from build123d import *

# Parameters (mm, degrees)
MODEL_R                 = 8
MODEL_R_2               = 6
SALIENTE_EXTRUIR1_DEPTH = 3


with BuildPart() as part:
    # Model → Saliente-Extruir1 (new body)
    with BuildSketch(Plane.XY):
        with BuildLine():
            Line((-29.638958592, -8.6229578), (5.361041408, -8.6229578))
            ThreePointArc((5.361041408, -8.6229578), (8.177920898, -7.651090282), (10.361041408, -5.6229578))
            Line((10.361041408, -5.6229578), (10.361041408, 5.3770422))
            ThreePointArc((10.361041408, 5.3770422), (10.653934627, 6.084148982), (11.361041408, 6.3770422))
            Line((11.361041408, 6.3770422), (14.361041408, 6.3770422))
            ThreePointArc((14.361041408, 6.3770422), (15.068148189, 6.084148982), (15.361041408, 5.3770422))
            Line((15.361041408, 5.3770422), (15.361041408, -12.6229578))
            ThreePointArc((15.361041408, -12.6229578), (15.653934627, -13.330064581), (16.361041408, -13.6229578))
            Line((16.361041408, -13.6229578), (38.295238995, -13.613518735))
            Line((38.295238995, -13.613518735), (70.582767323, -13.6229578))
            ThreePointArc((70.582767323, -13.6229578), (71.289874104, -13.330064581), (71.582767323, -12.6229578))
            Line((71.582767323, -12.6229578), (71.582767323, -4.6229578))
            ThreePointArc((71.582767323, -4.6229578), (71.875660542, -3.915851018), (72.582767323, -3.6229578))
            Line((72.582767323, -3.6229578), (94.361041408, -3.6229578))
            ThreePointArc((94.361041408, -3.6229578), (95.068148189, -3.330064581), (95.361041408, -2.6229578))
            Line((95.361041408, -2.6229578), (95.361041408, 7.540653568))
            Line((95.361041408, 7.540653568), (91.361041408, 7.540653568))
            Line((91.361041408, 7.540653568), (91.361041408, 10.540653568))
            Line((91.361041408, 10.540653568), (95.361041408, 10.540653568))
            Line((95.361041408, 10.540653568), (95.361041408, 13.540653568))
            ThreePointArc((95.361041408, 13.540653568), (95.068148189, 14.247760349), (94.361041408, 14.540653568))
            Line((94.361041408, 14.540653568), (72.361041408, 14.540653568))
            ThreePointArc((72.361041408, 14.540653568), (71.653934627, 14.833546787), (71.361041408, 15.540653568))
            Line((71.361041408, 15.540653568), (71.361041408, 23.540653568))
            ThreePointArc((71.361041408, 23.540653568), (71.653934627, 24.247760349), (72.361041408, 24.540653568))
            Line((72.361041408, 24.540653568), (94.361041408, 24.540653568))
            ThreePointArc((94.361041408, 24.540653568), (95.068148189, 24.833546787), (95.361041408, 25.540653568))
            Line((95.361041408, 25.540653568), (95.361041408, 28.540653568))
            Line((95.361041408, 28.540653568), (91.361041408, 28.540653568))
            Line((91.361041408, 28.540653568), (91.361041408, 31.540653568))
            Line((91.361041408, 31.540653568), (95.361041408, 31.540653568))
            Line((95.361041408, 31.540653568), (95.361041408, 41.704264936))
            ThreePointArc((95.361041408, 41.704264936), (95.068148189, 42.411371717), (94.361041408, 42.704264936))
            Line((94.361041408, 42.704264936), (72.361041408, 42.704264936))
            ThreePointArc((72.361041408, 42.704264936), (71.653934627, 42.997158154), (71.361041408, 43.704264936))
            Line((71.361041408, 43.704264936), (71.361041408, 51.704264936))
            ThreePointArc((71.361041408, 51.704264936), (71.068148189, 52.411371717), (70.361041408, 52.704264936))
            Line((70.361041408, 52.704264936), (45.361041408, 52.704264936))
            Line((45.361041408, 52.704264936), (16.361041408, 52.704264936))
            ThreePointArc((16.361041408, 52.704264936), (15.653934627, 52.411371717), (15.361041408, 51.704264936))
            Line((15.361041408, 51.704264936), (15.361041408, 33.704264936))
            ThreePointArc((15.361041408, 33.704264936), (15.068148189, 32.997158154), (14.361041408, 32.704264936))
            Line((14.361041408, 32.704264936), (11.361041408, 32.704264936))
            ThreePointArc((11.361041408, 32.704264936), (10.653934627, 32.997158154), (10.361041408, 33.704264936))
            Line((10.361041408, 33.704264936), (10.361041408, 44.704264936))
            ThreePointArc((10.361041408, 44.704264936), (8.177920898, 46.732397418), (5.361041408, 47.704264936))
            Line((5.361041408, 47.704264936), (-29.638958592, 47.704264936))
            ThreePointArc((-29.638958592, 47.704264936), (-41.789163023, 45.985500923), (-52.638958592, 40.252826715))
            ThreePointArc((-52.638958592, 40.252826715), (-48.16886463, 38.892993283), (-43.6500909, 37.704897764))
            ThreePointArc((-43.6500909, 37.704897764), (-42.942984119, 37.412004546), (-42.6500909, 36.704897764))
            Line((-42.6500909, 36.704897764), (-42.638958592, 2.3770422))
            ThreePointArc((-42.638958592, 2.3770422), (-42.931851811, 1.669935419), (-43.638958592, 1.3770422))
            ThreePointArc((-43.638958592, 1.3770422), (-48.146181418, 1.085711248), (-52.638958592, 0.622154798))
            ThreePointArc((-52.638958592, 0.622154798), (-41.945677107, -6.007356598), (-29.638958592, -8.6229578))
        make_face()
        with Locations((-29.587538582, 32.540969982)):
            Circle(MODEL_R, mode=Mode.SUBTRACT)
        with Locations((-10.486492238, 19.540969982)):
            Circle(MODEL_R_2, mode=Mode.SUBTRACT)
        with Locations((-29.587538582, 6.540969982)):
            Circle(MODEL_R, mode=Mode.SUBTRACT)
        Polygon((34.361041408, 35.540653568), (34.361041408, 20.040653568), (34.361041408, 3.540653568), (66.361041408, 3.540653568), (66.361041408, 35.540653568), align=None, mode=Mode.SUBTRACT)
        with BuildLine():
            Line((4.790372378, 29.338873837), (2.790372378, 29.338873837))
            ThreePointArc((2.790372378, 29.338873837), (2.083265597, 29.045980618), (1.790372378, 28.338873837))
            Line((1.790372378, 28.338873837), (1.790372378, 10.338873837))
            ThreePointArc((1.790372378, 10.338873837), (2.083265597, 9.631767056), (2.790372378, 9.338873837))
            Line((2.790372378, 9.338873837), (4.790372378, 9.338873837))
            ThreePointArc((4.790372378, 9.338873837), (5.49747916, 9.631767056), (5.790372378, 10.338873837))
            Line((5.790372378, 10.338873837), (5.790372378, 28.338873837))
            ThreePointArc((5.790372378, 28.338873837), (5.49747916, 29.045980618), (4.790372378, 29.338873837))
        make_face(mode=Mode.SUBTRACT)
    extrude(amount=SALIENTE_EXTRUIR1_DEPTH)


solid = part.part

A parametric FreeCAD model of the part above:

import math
import FreeCAD as App
import Part
import Sketcher


def add_polygon(sketch, points):
    """Adds a closed chain of lines whose ends are joined by coincident constraints."""
    first, n = sketch.GeometryCount, len(points)
    for a, b in zip(points, points[1:] + points[:1]):
        sketch.addGeometry(Part.LineSegment(App.Vector(*a, 0), App.Vector(*b, 0)), False)
    for i in range(n):
        sketch.addConstraint(Sketcher.Constraint("Coincident", first + i, 2, first + (i + 1) % n, 1))

doc = App.newDocument("Part")
body = doc.addObject("PartDesign::Body", "Body")

sketch1 = body.newObject("Sketcher::SketchObject", "Sketch")
sketch1.AttachmentSupport = (doc.getObject("XY_Plane"), [""])
sketch1.MapMode = "FlatFace"
sketch1.addGeometry(Part.LineSegment(App.Vector(-29.6, -8.6, 0), App.Vector(5.4, -8.6, 0)), False)
sketch1.addGeometry(Part.ArcOfCircle(Part.Circle(App.Vector(4.5, -1.5, 0), App.Vector(0, 0, 1), 7.2), math.radians(-83), math.radians(-35)), False)
sketch1.addGeometry(Part.LineSegment(App.Vector(10.4, -5.6, 0), App.Vector(10.4, 5.4, 0)), False)
sketch1.addGeometry(Part.ArcOfCircle(Part.Circle(App.Vector(11.4, 5.4, 0), App.Vector(0, 0, 1), 1), math.radians(90), math.radians(180)), False)
sketch1.addGeometry(Part.LineSegment(App.Vector(11.4, 6.4, 0), App.Vector(14.4, 6.4, 0)), False)
sketch1.addGeometry(Part.ArcOfCircle(Part.Circle(App.Vector(14.4, 5.4, 0), App.Vector(0, 0, 1), 1), math.radians(0), math.radians(90)), False)
sketch1.addGeometry(Part.LineSegment(App.Vector(15.4, 5.4, 0), App.Vector(15.4, -12.6, 0)), False)
sketch1.addGeometry(Part.ArcOfCircle(Part.Circle(App.Vector(16.4, -12.6, 0), App.Vector(0, 0, 1), 1), math.radians(-180), math.radians(-90)), False)
sketch1.addGeometry(Part.LineSegment(App.Vector(16.4, -13.6, 0), App.Vector(38.3, -13.6, 0)), False)
sketch1.addGeometry(Part.LineSegment(App.Vector(38.3, -13.6, 0), App.Vector(70.6, -13.6, 0)), False)
sketch1.addGeometry(Part.ArcOfCircle(Part.Circle(App.Vector(70.6, -12.6, 0), App.Vector(0, 0, 1), 1), math.radians(-90), math.radians(0)), False)
sketch1.addGeometry(Part.LineSegment(App.Vector(71.6, -12.6, 0), App.Vector(71.6, -4.6, 0)), False)
sketch1.addGeometry(Part.ArcOfCircle(Part.Circle(App.Vector(72.6, -4.6, 0), App.Vector(0, 0, 1), 1), math.radians(90), math.radians(180)), False)
sketch1.addGeometry(Part.LineSegment(App.Vector(72.6, -3.6, 0), App.Vector(94.4, -3.6, 0)), False)
sketch1.addGeometry(Part.ArcOfCircle(Part.Circle(App.Vector(94.4, -2.6, 0), App.Vector(0, 0, 1), 1), math.radians(-90), math.radians(0)), False)
sketch1.addGeometry(Part.LineSegment(App.Vector(95.4, -2.6, 0), App.Vector(95.4, 7.5, 0)), False)
sketch1.addGeometry(Part.LineSegment(App.Vector(95.4, 7.5, 0), App.Vector(91.4, 7.5, 0)), False)
sketch1.addGeometry(Part.LineSegment(App.Vector(91.4, 7.5, 0), App.Vector(91.4, 10.5, 0)), False)
sketch1.addGeometry(Part.LineSegment(App.Vector(91.4, 10.5, 0), App.Vector(95.4, 10.5, 0)), False)
sketch1.addGeometry(Part.LineSegment(App.Vector(95.4, 10.5, 0), App.Vector(95.4, 13.5, 0)), False)
sketch1.addGeometry(Part.ArcOfCircle(Part.Circle(App.Vector(94.4, 13.5, 0), App.Vector(0, 0, 1), 1), math.radians(0), math.radians(90)), False)
sketch1.addGeometry(Part.LineSegment(App.Vector(94.4, 14.5, 0), App.Vector(72.4, 14.5, 0)), False)
sketch1.addGeometry(Part.ArcOfCircle(Part.Circle(App.Vector(72.4, 15.5, 0), App.Vector(0, 0, 1), 1), math.radians(-180), math.radians(-90)), False)
sketch1.addGeometry(Part.LineSegment(App.Vector(71.4, 15.5, 0), App.Vector(71.4, 23.5, 0)), False)
sketch1.addGeometry(Part.ArcOfCircle(Part.Circle(App.Vector(72.4, 23.5, 0), App.Vector(0, 0, 1), 1), math.radians(90), math.radians(180)), False)
sketch1.addGeometry(Part.LineSegment(App.Vector(72.4, 24.5, 0), App.Vector(94.4, 24.5, 0)), False)
sketch1.addGeometry(Part.ArcOfCircle(Part.Circle(App.Vector(94.4, 25.5, 0), App.Vector(0, 0, 1), 1), math.radians(-90), math.radians(0)), False)
sketch1.addGeometry(Part.LineSegment(App.Vector(95.4, 25.5, 0), App.Vector(95.4, 28.5, 0)), False)
sketch1.addGeometry(Part.LineSegment(App.Vector(95.4, 28.5, 0), App.Vector(91.4, 28.5, 0)), False)
sketch1.addGeometry(Part.LineSegment(App.Vector(91.4, 28.5, 0), App.Vector(91.4, 31.5, 0)), False)
sketch1.addGeometry(Part.LineSegment(App.Vector(91.4, 31.5, 0), App.Vector(95.4, 31.5, 0)), False)
sketch1.addGeometry(Part.LineSegment(App.Vector(95.4, 31.5, 0), App.Vector(95.4, 41.7, 0)), False)
sketch1.addGeometry(Part.ArcOfCircle(Part.Circle(App.Vector(94.4, 41.7, 0), App.Vector(0, 0, 1), 1), math.radians(0), math.radians(90)), False)
sketch1.addGeometry(Part.LineSegment(App.Vector(94.4, 42.7, 0), App.Vector(72.4, 42.7, 0)), False)
sketch1.addGeometry(Part.ArcOfCircle(Part.Circle(App.Vector(72.4, 43.7, 0), App.Vector(0, 0, 1), 1), math.radians(180), math.radians(270)), False)
sketch1.addGeometry(Part.LineSegment(App.Vector(71.4, 43.7, 0), App.Vector(71.4, 51.7, 0)), False)
sketch1.addGeometry(Part.ArcOfCircle(Part.Circle(App.Vector(70.4, 51.7, 0), App.Vector(0, 0, 1), 1), math.radians(0), math.radians(90)), False)
sketch1.addGeometry(Part.LineSegment(App.Vector(70.4, 52.7, 0), App.Vector(16.4, 52.7, 0)), False)
sketch1.addGeometry(Part.ArcOfCircle(Part.Circle(App.Vector(16.4, 51.7, 0), App.Vector(0, 0, 1), 1), math.radians(90), math.radians(180)), False)
sketch1.addGeometry(Part.LineSegment(App.Vector(15.4, 51.7, 0), App.Vector(15.4, 33.7, 0)), False)
sketch1.addGeometry(Part.ArcOfCircle(Part.Circle(App.Vector(14.4, 33.7, 0), App.Vector(0, 0, 1), 1), math.radians(-90), math.radians(0)), False)
sketch1.addGeometry(Part.LineSegment(App.Vector(14.4, 32.7, 0), App.Vector(11.4, 32.7, 0)), False)
sketch1.addGeometry(Part.ArcOfCircle(Part.Circle(App.Vector(11.4, 33.7, 0), App.Vector(0, 0, 1), 1), math.radians(180), math.radians(270)), False)
sketch1.addGeometry(Part.LineSegment(App.Vector(10.4, 33.7, 0), App.Vector(10.4, 44.7, 0)), False)
sketch1.addGeometry(Part.ArcOfCircle(Part.Circle(App.Vector(4.5, 40.6, 0), App.Vector(0, 0, 1), 7.2), math.radians(35), math.radians(83)), False)
sketch1.addGeometry(Part.LineSegment(App.Vector(5.4, 47.7, 0), App.Vector(-29.6, 47.7, 0)), False)
sketch1.addGeometry(Part.ArcOfCircle(Part.Circle(App.Vector(-30.8, 12, 0), App.Vector(0, 0, 1), 35.7), math.radians(88), math.radians(128)), False)
sketch1.addGeometry(Part.ArcOfCircle(Part.Circle(App.Vector(-14.8, 156.6, 0), App.Vector(0, 0, 1), 122.3), math.radians(-108.01), math.radians(-103.64)), False)
sketch1.addGeometry(Part.ArcOfCircle(Part.Circle(App.Vector(-43.7, 36.7, 0), App.Vector(0, 0, 1), 1), math.radians(0), math.radians(90)), False)
sketch1.addGeometry(Part.LineSegment(App.Vector(-42.7, 36.7, 0), App.Vector(-42.6, 2.4, 0)), False)
sketch1.addGeometry(Part.ArcOfCircle(Part.Circle(App.Vector(-43.6, 2.4, 0), App.Vector(0, 0, 1), 1), math.radians(-90), math.radians(0)), False)
sketch1.addGeometry(Part.ArcOfCircle(Part.Circle(App.Vector(-38.3, -116.5, 0), App.Vector(0, 0, 1), 118), math.radians(92.6), math.radians(96.99)), False)
sketch1.addGeometry(Part.ArcOfCircle(Part.Circle(App.Vector(-28.3, 27.9, 0), App.Vector(0, 0, 1), 36.6), math.radians(-132), math.radians(-92)), False)
sketch1.addGeometry(Part.Circle(App.Vector(-29.6, 6.5, 0), App.Vector(0, 0, 1), 8), False)
sketch1.addGeometry(Part.LineSegment(App.Vector(2.8, 29.3, 0), App.Vector(4.8, 29.3, 0)), False)
sketch1.addGeometry(Part.ArcOfCircle(Part.Circle(App.Vector(4.8, 28.3, 0), App.Vector(0, 0, 1), 1), math.radians(0), math.radians(90)), False)
sketch1.addGeometry(Part.LineSegment(App.Vector(5.8, 28.3, 0), App.Vector(5.8, 10.3, 0)), False)
sketch1.addGeometry(Part.ArcOfCircle(Part.Circle(App.Vector(4.8, 10.3, 0), App.Vector(0, 0, 1), 1), math.radians(-90), math.radians(0)), False)
sketch1.addGeometry(Part.LineSegment(App.Vector(4.8, 9.3, 0), App.Vector(2.8, 9.3, 0)), False)
sketch1.addGeometry(Part.ArcOfCircle(Part.Circle(App.Vector(2.8, 10.3, 0), App.Vector(0, 0, 1), 1), math.radians(-180), math.radians(-90)), False)
sketch1.addGeometry(Part.LineSegment(App.Vector(1.8, 10.3, 0), App.Vector(1.8, 28.3, 0)), False)
sketch1.addGeometry(Part.ArcOfCircle(Part.Circle(App.Vector(2.8, 28.3, 0), App.Vector(0, 0, 1), 1), math.radians(90), math.radians(180)), False)
add_polygon(sketch1, [(34.4, 3.5), (34.4, 35.5), (66.4, 35.5), (66.4, 3.5)])
sketch1.addGeometry(Part.Circle(App.Vector(-10.5, 19.5, 0), App.Vector(0, 0, 1), 6), False)
sketch1.addGeometry(Part.Circle(App.Vector(-29.6, 32.5, 0), App.Vector(0, 0, 1), 8), False)
sketch1.addConstraint([
    Sketcher.Constraint("Coincident", 0, 2, 1, 1),
    Sketcher.Constraint("Coincident", 1, 2, 2, 1),
    Sketcher.Constraint("Tangent", 2, 2, 3, 2),
    Sketcher.Constraint("Tangent", 3, 1, 4, 1),
    Sketcher.Constraint("Tangent", 4, 2, 5, 2),
    Sketcher.Constraint("Tangent", 5, 1, 6, 1),
    Sketcher.Constraint("Tangent", 6, 2, 7, 1),
    Sketcher.Constraint("Coincident", 7, 2, 8, 1),
    Sketcher.Constraint("Coincident", 8, 2, 9, 1),
    Sketcher.Constraint("Coincident", 9, 2, 10, 1),
    Sketcher.Constraint("Tangent", 10, 2, 11, 1),
    Sketcher.Constraint("Tangent", 11, 2, 12, 2),
    Sketcher.Constraint("Tangent", 12, 1, 13, 1),
    Sketcher.Constraint("Tangent", 13, 2, 14, 1),
    Sketcher.Constraint("Tangent", 14, 2, 15, 1),
    Sketcher.Constraint("Coincident", 15, 2, 16, 1),
    Sketcher.Constraint("Coincident", 16, 2, 17, 1),
    Sketcher.Constraint("Coincident", 17, 2, 18, 1),
    Sketcher.Constraint("Coincident", 18, 2, 19, 1),
    Sketcher.Constraint("Tangent", 19, 2, 20, 1),
    Sketcher.Constraint("Tangent", 20, 2, 21, 1),
    Sketcher.Constraint("Tangent", 21, 2, 22, 2),
    Sketcher.Constraint("Tangent", 22, 1, 23, 1),
    Sketcher.Constraint("Tangent", 23, 2, 24, 2),
    Sketcher.Constraint("Tangent", 24, 1, 25, 1),
    Sketcher.Constraint("Tangent", 25, 2, 26, 1),
    Sketcher.Constraint("Tangent", 26, 2, 27, 1),
    Sketcher.Constraint("Coincident", 27, 2, 28, 1),
    Sketcher.Constraint("Coincident", 28, 2, 29, 1),
    Sketcher.Constraint("Coincident", 29, 2, 30, 1),
    Sketcher.Constraint("Coincident", 30, 2, 31, 1),
    Sketcher.Constraint("Tangent", 31, 2, 32, 1),
    Sketcher.Constraint("Tangent", 32, 2, 33, 1),
    Sketcher.Constraint("Tangent", 33, 2, 34, 2),
    Sketcher.Constraint("Tangent", 34, 1, 35, 1),
    Sketcher.Constraint("Tangent", 35, 2, 36, 1),
    Sketcher.Constraint("Tangent", 36, 2, 37, 1),
    Sketcher.Constraint("Tangent", 37, 2, 38, 1),
    Sketcher.Constraint("Tangent", 38, 2, 39, 1),
    Sketcher.Constraint("Tangent", 39, 2, 40, 2),
    Sketcher.Constraint("Tangent", 40, 1, 41, 1),
    Sketcher.Constraint("Tangent", 41, 2, 42, 2),
    Sketcher.Constraint("Tangent", 42, 1, 43, 1),
    Sketcher.Constraint("Coincident", 43, 2, 44, 1),
    Sketcher.Constraint("Coincident", 44, 2, 45, 1),
    Sketcher.Constraint("Coincident", 45, 2, 46, 1),
    Sketcher.Constraint("Coincident", 46, 2, 47, 1),
    Sketcher.Constraint("Coincident", 47, 2, 48, 2),
    Sketcher.Constraint("Coincident", 48, 1, 49, 1),
    Sketcher.Constraint("Coincident", 49, 2, 50, 2),
    Sketcher.Constraint("Coincident", 50, 1, 51, 1),
    Sketcher.Constraint("Coincident", 51, 2, 52, 1),
    Sketcher.Constraint("Coincident", 52, 2, 0, 1),
    Sketcher.Constraint("Tangent", 54, 2, 55, 2),
    Sketcher.Constraint("Tangent", 55, 1, 56, 1),
    Sketcher.Constraint("Tangent", 56, 2, 57, 2),
    Sketcher.Constraint("Tangent", 57, 1, 58, 1),
    Sketcher.Constraint("Tangent", 58, 2, 59, 2),
    Sketcher.Constraint("Tangent", 59, 1, 60, 1),
    Sketcher.Constraint("Tangent", 60, 2, 61, 2),
    Sketcher.Constraint("Tangent", 61, 1, 54, 1),
    Sketcher.Constraint("Horizontal", 0),
    Sketcher.Constraint("Vertical", 2),
    Sketcher.Constraint("Horizontal", 4),
    Sketcher.Constraint("Vertical", 6),
    Sketcher.Constraint("Vertical", 11),
    Sketcher.Constraint("Horizontal", 13),
    Sketcher.Constraint("Vertical", 15),
    Sketcher.Constraint("Horizontal", 16),
    Sketcher.Constraint("Vertical", 17),
    Sketcher.Constraint("Horizontal", 18),
    Sketcher.Constraint("Vertical", 19),
    Sketcher.Constraint("Horizontal", 21),
    Sketcher.Constraint("Vertical", 23),
    Sketcher.Constraint("Horizontal", 25),
    Sketcher.Constraint("Vertical", 27),
    Sketcher.Constraint("Horizontal", 28),
    Sketcher.Constraint("Vertical", 29),
    Sketcher.Constraint("Horizontal", 30),
    Sketcher.Constraint("Vertical", 31),
    Sketcher.Constraint("Horizontal", 33),
    Sketcher.Constraint("Vertical", 35),
    Sketcher.Constraint("Horizontal", 37),
    Sketcher.Constraint("Vertical", 39),
    Sketcher.Constraint("Horizontal", 41),
    Sketcher.Constraint("Vertical", 43),
    Sketcher.Constraint("Horizontal", 45),
    Sketcher.Constraint("Horizontal", 54),
    Sketcher.Constraint("Vertical", 56),
    Sketcher.Constraint("Horizontal", 58),
    Sketcher.Constraint("Vertical", 60),
    Sketcher.Constraint("Vertical", 62),
    Sketcher.Constraint("Horizontal", 63),
    Sketcher.Constraint("Vertical", 64),
    Sketcher.Constraint("Horizontal", 65),
    Sketcher.Constraint("Equal", 3, 5),
    Sketcher.Constraint("Equal", 5, 7),
    Sketcher.Constraint("Equal", 7, 10),
    Sketcher.Constraint("Equal", 10, 12),
    Sketcher.Constraint("Equal", 12, 14),
    Sketcher.Constraint("Equal", 14, 20),
    Sketcher.Constraint("Equal", 20, 22),
    Sketcher.Constraint("Equal", 22, 24),
    Sketcher.Constraint("Equal", 24, 26),
    Sketcher.Constraint("Equal", 26, 32),
    Sketcher.Constraint("Equal", 32, 34),
    Sketcher.Constraint("Equal", 34, 36),
    Sketcher.Constraint("Equal", 36, 38),
    Sketcher.Constraint("Equal", 38, 40),
    Sketcher.Constraint("Equal", 40, 42),
    Sketcher.Constraint("Equal", 1, 44),
    Sketcher.Constraint("Equal", 42, 48),
    Sketcher.Constraint("Equal", 48, 50),
    Sketcher.Constraint("Equal", 50, 55),
    Sketcher.Constraint("Equal", 55, 57),
    Sketcher.Constraint("Equal", 57, 59),
    Sketcher.Constraint("Equal", 59, 61),
    Sketcher.Constraint("Equal", 53, 67),
    Sketcher.Constraint("Horizontal", 7, 3, 10, 3),
    Sketcher.Constraint("Horizontal", 50, 3, 49, 2),
    Sketcher.Constraint("Vertical", 14, 3, 20, 3),
    Sketcher.Constraint("Vertical", 20, 3, 26, 3),
    Sketcher.Constraint("Vertical", 26, 3, 32, 3),
    Sketcher.Constraint("Vertical", 24, 3, 34, 3),
    Sketcher.Constraint("Vertical", 7, 3, 38, 3),
    Sketcher.Constraint("Vertical", 3, 3, 42, 3),
    Sketcher.Constraint("Vertical", 1, 3, 44, 3),
    Sketcher.Constraint("Vertical", 53, 3, 67, 3),
    Sketcher.Constraint("Vertical", 38, 3, 7, 2),
    Sketcher.Constraint("Vertical", 10, 3, 9, 2),
    Sketcher.Constraint("Vertical", 17, 2, 28, 2),
    Sketcher.Constraint("Vertical", 0, 2, 44, 2),
    Sketcher.Constraint("Vertical", 48, 3, 47, 2),
    Sketcher.Constraint("Vertical", 46, 2, 51, 2),
    Sketcher.Constraint("Vertical", 45, 2, 52, 2),
    Sketcher.Constraint("Equal", 41, 17),
    Sketcher.Constraint("Equal", 17, 19),
    Sketcher.Constraint("Equal", 11, 23),
    Sketcher.Constraint("Equal", 19, 27),
    Sketcher.Constraint("Equal", 27, 29),
    Sketcher.Constraint("Equal", 15, 31),
    Sketcher.Constraint("Equal", 23, 35),
    Sketcher.Constraint("Equal", 6, 39),
    Sketcher.Constraint("Equal", 2, 43),
    Sketcher.Constraint("Equal", 39, 56),
    Sketcher.Constraint("Equal", 65, 62),
    Sketcher.Constraint("Diameter", 53, 16.0),
    Sketcher.Constraint("Diameter", 66, 12.0),
    Sketcher.Constraint("Radius", 3, 1.0),
    Sketcher.Constraint("DistanceX", 0, 1, 0, 2, 35.0),
    Sketcher.Constraint("DistanceX", 4, 1, 4, 2, 3.0),
    Sketcher.Constraint("DistanceX", 16, 2, 16, 1, 4.0),
    Sketcher.Constraint("DistanceX", 21, 2, 21, 1, 22.0),
    Sketcher.Constraint("DistanceX", 37, 2, 37, 1, 54.0),
    Sketcher.Constraint("DistanceX", 54, 1, 54, 2, 2.0),
    Sketcher.Constraint("DistanceX", 63, 1, 63, 2, 32.0),
    Sketcher.Constraint("DistanceY", 2, 1, 2, 2, 11.0),
    Sketcher.Constraint("DistanceY", 6, 2, 6, 1, 18.0),
    Sketcher.Constraint("DistanceY", 11, 1, 11, 2, 8.0),
    Sketcher.Constraint("Radius", 1, 7.208389),
    Sketcher.Constraint("Radius", 46, 35.688722),
    Sketcher.Constraint("Radius", 47, 122.299238),
    Sketcher.Constraint("Radius", 52, 36.591561),
    Sketcher.Constraint("Radius", 51, 118.034488),
    Sketcher.Constraint("Distance", 8, 21.9342),
    Sketcher.Constraint("DistanceY", 15, 1, 15, 2, 10.163611),
    Sketcher.Constraint("DistanceY", -1, 1, 46, 3, 12.034101),
    Sketcher.Constraint("Distance", 9, 32.28753),
    Sketcher.Constraint("DistanceY", 1, 3, -1, 1, 1.469948),
    Sketcher.Constraint("DistanceX", -1, 1, 3, 3, 11.361041),
    Sketcher.Constraint("DistanceX", 46, 3, -1, 1, 30.789739),
    Sketcher.Constraint("DistanceY", -1, 1, 47, 3, 156.55664),
    Sketcher.Constraint("DistanceX", 48, 3, -1, 1, 43.650091),
    Sketcher.Constraint("DistanceX", 50, 3, -1, 1, 43.638959),
    Sketcher.Constraint("DistanceX", 51, 3, -1, 1, 38.280519),
    Sketcher.Constraint("DistanceX", 53, 3, -1, 1, 29.587539),
    Sketcher.Constraint("DistanceY", -1, 1, 53, 3, 6.54097),
    Sketcher.Constraint("DistanceY", -1, 1, 66, 3, 19.54097),
    Sketcher.Constraint("DistanceY", -1, 1, 67, 3, 32.54097),
    Sketcher.Constraint("DistanceX", -1, 1, 0, 2, 5.361041),
    Sketcher.Constraint("DistanceY", 8, 2, -1, 1, 13.613519),
    Sketcher.Constraint("DistanceX", 46, 2, -1, 1, 52.638959),
    Sketcher.Constraint("DistanceX", 50, 1, -1, 1, 43.638959),
    Sketcher.Constraint("DistanceX", -1, 1, 62, 2, 34.361041),
    Sketcher.Constraint("Distance", 49, 34.327857),
    Sketcher.Constraint("DistanceY", -1, 1, 50, 3, 2.377042),
    Sketcher.Constraint("DistanceX", -1, 1, 55, 3, 4.790372),
    Sketcher.Constraint("DistanceY", -1, 1, 55, 3, 28.338874),
    Sketcher.Constraint("DistanceX", 66, 3, -1, 1, 10.486492),
    Sketcher.Constraint("DistanceY", -1, 1, 62, 2, 35.540654),
])
pad1 = body.newObject("PartDesign::Pad", "Pad")
pad1.Profile = sketch1
pad1.Length = 3

doc.recompute()
